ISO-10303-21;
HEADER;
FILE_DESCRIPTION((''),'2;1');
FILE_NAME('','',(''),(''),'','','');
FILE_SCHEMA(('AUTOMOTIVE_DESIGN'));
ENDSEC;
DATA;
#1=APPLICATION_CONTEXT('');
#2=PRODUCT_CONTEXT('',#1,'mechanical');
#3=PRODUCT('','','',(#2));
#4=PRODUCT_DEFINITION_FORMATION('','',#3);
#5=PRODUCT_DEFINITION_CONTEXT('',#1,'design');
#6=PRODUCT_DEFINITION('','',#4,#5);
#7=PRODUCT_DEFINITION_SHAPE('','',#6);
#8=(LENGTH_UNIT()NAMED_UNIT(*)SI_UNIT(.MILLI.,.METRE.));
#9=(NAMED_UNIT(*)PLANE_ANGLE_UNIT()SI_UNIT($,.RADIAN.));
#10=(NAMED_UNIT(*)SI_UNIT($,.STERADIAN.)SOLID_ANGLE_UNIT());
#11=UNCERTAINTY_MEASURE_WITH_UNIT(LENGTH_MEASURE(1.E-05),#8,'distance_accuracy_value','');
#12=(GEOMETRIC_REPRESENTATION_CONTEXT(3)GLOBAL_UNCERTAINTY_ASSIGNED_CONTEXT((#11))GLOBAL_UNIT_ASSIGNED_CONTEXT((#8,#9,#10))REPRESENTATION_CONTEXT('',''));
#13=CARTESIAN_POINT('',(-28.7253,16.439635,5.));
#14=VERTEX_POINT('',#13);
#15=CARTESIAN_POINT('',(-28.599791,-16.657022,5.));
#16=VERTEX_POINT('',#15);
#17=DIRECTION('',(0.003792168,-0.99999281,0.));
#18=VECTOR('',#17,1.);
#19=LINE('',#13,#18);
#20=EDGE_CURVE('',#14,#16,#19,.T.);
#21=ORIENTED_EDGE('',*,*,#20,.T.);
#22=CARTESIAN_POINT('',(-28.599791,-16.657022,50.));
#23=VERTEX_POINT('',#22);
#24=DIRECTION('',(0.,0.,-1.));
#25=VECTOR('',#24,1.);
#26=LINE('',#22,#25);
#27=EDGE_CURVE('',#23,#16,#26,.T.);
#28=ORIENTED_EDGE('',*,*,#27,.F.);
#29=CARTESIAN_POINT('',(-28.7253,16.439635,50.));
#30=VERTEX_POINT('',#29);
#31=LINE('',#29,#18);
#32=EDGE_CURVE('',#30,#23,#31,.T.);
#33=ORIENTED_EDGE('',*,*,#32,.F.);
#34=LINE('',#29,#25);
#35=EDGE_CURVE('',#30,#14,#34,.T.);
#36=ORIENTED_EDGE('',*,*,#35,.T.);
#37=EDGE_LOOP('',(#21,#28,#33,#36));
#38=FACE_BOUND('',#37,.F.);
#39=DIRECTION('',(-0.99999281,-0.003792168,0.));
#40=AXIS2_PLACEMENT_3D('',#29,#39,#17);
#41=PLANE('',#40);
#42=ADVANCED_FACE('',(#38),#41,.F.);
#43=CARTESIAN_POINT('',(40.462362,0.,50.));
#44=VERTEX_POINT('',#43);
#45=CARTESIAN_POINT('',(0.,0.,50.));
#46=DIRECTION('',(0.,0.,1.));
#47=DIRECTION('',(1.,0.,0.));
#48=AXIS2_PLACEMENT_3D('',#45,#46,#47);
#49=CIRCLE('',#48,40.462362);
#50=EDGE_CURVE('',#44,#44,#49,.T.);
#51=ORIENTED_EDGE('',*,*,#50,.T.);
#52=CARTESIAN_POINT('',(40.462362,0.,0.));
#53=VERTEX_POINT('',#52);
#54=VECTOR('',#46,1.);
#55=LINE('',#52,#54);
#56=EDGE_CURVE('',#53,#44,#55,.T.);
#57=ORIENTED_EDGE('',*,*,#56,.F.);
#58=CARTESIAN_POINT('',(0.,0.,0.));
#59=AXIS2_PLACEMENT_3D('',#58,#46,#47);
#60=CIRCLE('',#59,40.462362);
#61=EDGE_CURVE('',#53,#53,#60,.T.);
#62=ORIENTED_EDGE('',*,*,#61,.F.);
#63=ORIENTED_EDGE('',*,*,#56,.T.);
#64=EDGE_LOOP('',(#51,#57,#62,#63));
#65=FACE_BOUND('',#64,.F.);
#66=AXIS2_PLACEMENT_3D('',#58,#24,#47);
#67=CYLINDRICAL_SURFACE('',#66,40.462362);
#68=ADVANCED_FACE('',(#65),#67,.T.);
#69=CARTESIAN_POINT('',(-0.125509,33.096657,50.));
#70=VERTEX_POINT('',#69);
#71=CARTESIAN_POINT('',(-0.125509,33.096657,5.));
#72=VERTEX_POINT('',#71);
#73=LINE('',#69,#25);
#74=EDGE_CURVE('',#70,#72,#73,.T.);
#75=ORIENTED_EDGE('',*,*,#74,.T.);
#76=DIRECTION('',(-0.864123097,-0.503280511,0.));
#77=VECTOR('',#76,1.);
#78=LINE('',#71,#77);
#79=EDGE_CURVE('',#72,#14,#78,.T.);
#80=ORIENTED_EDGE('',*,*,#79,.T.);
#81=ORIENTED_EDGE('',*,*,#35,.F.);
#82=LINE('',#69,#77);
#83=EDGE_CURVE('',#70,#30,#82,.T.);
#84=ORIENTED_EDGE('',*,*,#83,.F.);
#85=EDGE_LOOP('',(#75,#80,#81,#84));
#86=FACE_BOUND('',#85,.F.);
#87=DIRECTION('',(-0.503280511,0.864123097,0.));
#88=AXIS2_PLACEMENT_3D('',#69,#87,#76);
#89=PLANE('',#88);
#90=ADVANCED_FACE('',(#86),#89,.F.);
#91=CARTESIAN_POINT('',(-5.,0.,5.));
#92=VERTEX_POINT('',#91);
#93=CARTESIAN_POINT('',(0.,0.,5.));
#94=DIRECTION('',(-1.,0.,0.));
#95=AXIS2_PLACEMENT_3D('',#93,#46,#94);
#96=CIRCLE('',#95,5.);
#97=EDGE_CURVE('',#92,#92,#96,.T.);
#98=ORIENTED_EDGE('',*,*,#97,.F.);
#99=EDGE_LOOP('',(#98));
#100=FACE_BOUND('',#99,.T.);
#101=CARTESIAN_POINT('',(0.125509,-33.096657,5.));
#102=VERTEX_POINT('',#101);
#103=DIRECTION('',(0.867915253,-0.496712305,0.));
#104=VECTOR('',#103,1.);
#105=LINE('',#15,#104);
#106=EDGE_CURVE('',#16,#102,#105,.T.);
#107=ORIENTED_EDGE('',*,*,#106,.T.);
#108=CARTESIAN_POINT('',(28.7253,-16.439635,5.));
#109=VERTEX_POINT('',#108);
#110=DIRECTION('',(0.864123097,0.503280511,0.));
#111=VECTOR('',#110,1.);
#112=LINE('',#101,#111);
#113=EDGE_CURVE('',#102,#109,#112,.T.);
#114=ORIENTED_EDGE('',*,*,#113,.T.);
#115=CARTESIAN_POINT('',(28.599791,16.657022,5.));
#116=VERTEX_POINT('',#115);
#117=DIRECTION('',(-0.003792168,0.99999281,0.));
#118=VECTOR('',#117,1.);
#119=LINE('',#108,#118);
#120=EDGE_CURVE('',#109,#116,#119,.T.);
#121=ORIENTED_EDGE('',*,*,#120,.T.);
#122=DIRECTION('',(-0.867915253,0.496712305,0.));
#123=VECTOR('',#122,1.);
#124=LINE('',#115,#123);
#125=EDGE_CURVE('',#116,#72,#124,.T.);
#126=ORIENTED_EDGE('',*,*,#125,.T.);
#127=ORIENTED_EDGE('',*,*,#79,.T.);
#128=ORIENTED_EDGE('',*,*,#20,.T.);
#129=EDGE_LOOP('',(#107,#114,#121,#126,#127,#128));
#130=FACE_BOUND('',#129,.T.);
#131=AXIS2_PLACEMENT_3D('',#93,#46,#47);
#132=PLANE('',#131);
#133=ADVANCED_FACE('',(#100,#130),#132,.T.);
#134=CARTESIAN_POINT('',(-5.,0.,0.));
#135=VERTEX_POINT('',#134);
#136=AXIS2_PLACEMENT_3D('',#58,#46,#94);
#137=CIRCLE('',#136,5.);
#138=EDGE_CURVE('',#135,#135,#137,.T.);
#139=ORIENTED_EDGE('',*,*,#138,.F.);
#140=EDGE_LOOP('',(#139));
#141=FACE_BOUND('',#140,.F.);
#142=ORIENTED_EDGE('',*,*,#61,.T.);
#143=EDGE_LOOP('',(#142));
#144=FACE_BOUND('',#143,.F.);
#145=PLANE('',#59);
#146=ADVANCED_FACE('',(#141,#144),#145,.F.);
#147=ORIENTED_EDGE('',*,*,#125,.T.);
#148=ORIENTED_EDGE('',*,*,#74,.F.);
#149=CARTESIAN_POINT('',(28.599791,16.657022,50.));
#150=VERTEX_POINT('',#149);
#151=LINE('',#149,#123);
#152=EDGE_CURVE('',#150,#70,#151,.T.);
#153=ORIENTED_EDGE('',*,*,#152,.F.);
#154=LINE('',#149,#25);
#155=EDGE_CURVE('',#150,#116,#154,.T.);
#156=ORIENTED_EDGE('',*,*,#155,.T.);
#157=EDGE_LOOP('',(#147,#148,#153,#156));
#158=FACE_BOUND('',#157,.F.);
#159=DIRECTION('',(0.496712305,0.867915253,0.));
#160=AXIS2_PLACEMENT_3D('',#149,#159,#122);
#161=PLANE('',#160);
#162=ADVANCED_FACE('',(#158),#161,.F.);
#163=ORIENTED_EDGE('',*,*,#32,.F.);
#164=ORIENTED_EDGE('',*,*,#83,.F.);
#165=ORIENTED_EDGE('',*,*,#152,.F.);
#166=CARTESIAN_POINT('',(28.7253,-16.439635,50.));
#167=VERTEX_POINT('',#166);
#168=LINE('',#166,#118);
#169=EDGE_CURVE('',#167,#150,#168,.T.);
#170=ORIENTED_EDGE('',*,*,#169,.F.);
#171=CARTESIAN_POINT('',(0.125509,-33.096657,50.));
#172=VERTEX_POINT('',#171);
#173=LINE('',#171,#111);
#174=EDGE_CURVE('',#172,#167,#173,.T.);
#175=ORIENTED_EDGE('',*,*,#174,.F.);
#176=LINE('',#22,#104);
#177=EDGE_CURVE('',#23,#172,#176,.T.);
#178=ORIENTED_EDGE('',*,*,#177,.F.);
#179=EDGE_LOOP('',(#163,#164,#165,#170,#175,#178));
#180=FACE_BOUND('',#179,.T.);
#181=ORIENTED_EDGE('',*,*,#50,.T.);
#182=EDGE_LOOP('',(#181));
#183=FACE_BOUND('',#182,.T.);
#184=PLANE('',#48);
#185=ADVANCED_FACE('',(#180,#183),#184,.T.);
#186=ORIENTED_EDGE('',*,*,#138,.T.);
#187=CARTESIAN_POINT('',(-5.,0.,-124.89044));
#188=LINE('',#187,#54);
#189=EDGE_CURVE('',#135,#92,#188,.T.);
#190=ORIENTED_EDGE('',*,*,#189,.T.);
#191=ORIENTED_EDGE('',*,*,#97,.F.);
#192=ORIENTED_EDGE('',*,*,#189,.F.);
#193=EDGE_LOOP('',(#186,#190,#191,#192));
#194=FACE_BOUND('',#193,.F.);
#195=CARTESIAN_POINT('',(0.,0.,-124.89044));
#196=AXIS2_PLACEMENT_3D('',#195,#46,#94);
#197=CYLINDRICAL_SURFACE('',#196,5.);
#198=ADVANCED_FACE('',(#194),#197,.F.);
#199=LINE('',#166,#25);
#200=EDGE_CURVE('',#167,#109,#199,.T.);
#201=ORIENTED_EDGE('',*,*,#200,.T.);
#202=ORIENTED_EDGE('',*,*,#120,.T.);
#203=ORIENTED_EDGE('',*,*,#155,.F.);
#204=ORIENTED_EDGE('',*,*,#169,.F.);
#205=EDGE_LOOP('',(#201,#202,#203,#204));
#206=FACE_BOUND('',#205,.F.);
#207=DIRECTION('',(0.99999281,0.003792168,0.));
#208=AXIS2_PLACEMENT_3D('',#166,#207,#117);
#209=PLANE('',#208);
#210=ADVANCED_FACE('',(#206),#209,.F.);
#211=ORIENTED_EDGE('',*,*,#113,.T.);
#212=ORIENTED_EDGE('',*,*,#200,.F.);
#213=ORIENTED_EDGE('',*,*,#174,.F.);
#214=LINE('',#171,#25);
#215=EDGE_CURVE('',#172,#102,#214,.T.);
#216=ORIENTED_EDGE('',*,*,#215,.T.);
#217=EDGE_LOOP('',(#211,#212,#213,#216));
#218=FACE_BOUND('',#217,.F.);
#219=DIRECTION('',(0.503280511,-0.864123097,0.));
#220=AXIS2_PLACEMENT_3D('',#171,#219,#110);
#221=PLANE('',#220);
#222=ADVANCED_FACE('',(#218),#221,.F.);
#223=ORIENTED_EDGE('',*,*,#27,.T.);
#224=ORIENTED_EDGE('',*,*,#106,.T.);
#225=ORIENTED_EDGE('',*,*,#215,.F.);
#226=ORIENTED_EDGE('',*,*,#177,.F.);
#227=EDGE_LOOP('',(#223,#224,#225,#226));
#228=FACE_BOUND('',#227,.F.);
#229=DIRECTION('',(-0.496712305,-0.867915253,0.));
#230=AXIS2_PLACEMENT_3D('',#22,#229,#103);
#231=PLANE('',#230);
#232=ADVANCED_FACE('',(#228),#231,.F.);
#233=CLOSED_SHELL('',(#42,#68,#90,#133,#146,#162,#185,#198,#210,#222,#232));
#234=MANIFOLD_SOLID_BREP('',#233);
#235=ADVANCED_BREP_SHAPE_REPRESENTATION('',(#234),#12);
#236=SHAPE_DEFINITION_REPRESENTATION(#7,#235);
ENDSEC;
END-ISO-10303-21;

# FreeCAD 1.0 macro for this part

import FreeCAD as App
import Part
import Sketcher

V = App.Vector
Q = App.Units.Quantity


def add_polygon(sketch, points):
    """Adds a closed chain of lines whose ends are joined by coincident constraints."""
    first, n = sketch.GeometryCount, len(points)
    for a, b in zip(points, points[1:] + points[:1]):
        sketch.addGeometry(Part.LineSegment(App.Vector(*a, 0), App.Vector(*b, 0)), False)
    for i in range(n):
        sketch.addConstraint(Sketcher.Constraint("Coincident", first + i, 2, first + (i + 1) % n, 1))

doc = App.newDocument("Part")
body = doc.addObject("PartDesign::Body", "Body")

sketch1 = body.newObject("Sketcher::SketchObject", "Sketch")
sketch1.AttachmentSupport = (doc.getObject("XY_Plane"), [""])
sketch1.MapMode = "FlatFace"
sketch1.addGeometry(Part.Circle(V(0, 0, 0), V(0, 0, 1), 40), False)
sketch1.addConstraint([
    Sketcher.Constraint("Coincident", 0, 3, -1, 1),
    Sketcher.Constraint("Diameter", 0, Q("80.924724 mm")),
])
pad1 = body.newObject("PartDesign::Pad", "Pad")
pad1.Profile = sketch1
pad1.Length = 50

sketch2 = body.newObject("Sketcher::SketchObject", "Sketch001")
sketch2.AttachmentSupport = (doc.getObject("XY_Plane"), [""])
sketch2.MapMode = "FlatFace"
sketch2.AttachmentOffset = App.Placement(V(0, 0, 50), App.Rotation())
add_polygon(sketch2, [(0, 33), (-29, 16), (-29, -17), (0, -33), (29, -16), (29, 17)])
sketch2.addConstraint([
    Sketcher.Constraint("Symmetric", 0, 2, 3, 2, -1, 1),
    Sketcher.Constraint("Symmetric", 1, 2, 4, 2, -1, 1),
    Sketcher.Constraint("Symmetric", 2, 2, 5, 2, -1, 1),
    Sketcher.Constraint("Equal", 0, 1),
    Sketcher.Constraint("Equal", 1, 2),
    Sketcher.Constraint("DistanceX", 0, 2, -1, 1, Q("28.7253 mm")),
    Sketcher.Constraint("DistanceX", 1, 2, 2, 2, Q("28.7253 mm")),
    Sketcher.Constraint("DistanceX", 1, 2, -1, 1, Q("28.599791 mm")),
    Sketcher.Constraint("DistanceY", 3, 2, 0, 2, Q("32.87927 mm")),
])
pocket1 = body.newObject("PartDesign::Pocket", "Pocket")
pocket1.Profile = sketch2
pocket1.Length = 45

sketch3 = body.newObject("Sketcher::SketchObject", "Sketch002")
sketch3.AttachmentSupport = (doc.getObject("XY_Plane"), [""])
sketch3.MapMode = "FlatFace"
sketch3.addGeometry(Part.Circle(V(0, 0, 0), V(0, 0, 1), 5), False)
sketch3.addConstraint([
    Sketcher.Constraint("Coincident", 0, 3, -1, 1),
    Sketcher.Constraint("Diameter", 0, Q("10 mm")),
])
doc.recompute()
hole = body.newObject("PartDesign::Hole", "Hole")
hole.Profile = sketch3
hole.ThreadType = "None"
hole.Diameter = 10
hole.DepthType = "ThroughAll"
hole.Reversed = True

doc.recompute()
